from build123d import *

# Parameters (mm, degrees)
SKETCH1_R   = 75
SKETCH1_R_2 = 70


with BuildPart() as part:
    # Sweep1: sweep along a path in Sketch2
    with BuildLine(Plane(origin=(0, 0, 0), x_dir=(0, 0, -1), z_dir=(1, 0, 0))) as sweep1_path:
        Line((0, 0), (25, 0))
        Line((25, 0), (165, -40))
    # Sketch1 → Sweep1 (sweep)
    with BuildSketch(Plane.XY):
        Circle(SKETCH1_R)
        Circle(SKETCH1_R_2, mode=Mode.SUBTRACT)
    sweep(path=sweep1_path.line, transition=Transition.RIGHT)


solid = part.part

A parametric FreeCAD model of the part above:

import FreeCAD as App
import Part
import Sketcher

V = App.Vector

doc = App.newDocument("Part")
body = doc.addObject("PartDesign::Body", "Body")

# Sketch on XY plane
sketch1 = doc.addObject("Sketcher::SketchObject", "Sketch")
body.addObject(sketch1)
sketch1.AttachmentSupport = (doc.XY_Plane, [""])
sketch1.MapMode = "FlatFace"
sketch1.addGeometry([
    Part.Circle(V(0, 0, 0), V(0, 0, 1), 75),
    Part.Circle(V(0, 0, 0), V(0, 0, 1), 70),
], False)
sketch1.addConstraint([
    Sketcher.Constraint("Coincident", 0, 3, -1, 1),
    Sketcher.Constraint("Coincident", 1, 3, -1, 1),
    Sketcher.Constraint("Diameter", 0, 150.0),
    Sketcher.Constraint("Diameter", 1, 140.0),
])

# Sketch on YZ plane
sketch2 = doc.addObject("Sketcher::SketchObject", "Sketch001")
body.addObject(sketch2)
sketch2.AttachmentSupport = (doc.YZ_Plane, [""])
sketch2.MapMode = "FlatFace"
sketch2.addGeometry([
    Part.LineSegment(V(0, 0, 0), V(0, -25, 0)),
    Part.LineSegment(V(0, -25, 0), V(-40, -165, 0)),
], False)
sketch2.addConstraint([
    Sketcher.Constraint("Coincident", 0, 2, 1, 1),
    Sketcher.Constraint("Vertical", 0),
    Sketcher.Constraint("Coincident", 0, 1, -1, 1),
    Sketcher.Constraint("DistanceY", 0, 2, 0, 1, 25.0),
    Sketcher.Constraint("DistanceX", 1, 2, -1, 1, 40.0),
    Sketcher.Constraint("DistanceY", 1, 2, -1, 1, 165.0),
])
doc.recompute()

additivepipe = doc.addObject("PartDesign::AdditivePipe", "AdditivePipe")
body.addObject(additivepipe)
additivepipe.Profile = sketch1
additivepipe.Spine = (sketch2, ["Edge1", "Edge2"])
additivepipe.Transition = "Right corner"

doc.recompute()
